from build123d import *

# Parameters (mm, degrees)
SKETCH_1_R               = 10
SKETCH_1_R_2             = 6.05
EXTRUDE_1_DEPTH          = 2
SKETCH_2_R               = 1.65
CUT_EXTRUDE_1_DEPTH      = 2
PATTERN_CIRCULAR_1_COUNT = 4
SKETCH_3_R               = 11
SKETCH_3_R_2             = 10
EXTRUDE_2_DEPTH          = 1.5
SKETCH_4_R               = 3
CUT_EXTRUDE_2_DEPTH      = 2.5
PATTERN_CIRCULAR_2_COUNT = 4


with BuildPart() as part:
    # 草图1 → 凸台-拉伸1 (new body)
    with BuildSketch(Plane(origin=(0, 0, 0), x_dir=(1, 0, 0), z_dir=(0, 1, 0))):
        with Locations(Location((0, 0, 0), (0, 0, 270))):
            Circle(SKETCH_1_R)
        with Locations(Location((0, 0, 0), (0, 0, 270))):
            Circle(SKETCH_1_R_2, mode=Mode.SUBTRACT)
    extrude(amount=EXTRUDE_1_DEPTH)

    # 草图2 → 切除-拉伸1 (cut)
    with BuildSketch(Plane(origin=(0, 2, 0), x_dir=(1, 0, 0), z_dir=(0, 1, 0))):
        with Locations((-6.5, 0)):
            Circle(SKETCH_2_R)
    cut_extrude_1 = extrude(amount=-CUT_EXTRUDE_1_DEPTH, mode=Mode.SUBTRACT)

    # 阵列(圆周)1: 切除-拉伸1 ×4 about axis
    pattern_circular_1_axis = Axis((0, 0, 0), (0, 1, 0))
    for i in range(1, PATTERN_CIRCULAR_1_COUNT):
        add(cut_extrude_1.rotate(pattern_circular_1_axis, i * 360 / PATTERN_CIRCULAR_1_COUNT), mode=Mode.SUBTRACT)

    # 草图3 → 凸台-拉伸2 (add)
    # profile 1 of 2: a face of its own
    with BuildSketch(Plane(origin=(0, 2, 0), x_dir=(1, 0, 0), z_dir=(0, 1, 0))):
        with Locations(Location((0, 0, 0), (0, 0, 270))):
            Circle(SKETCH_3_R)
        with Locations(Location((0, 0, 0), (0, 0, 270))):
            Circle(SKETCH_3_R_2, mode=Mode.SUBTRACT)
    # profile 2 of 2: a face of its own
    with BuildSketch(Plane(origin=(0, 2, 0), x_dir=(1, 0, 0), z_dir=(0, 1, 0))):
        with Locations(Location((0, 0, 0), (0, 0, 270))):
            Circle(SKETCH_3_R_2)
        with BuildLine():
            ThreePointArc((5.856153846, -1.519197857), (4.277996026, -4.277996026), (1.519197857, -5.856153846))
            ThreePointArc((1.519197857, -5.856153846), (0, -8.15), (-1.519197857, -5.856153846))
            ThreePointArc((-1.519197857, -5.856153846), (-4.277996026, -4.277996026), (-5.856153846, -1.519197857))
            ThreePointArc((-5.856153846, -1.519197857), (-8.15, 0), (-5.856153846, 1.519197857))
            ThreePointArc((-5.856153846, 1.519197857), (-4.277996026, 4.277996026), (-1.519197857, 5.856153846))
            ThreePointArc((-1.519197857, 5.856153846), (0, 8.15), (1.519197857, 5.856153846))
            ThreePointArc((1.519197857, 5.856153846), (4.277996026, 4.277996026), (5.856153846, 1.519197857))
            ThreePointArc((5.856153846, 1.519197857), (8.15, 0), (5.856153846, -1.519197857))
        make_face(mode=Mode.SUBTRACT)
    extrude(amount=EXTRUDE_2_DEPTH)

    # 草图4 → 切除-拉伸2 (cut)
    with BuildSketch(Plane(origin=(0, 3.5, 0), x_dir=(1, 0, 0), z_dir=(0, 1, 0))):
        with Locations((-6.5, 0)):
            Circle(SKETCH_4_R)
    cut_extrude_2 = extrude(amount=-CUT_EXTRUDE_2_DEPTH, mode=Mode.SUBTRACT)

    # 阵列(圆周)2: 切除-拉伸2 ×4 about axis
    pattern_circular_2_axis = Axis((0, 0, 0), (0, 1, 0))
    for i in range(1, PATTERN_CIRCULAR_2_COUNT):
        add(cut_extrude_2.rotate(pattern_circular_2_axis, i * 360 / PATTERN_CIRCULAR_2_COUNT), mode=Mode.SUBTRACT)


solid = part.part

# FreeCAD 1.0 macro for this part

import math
import FreeCAD as App
import Part
import Sketcher
Q = App.Units.Quantity

doc = App.newDocument("Part")
body = doc.addObject("PartDesign::Body", "Body")

sketch1 = body.newObject("Sketcher::SketchObject", "Sketch")
sketch1.AttachmentSupport = (doc.getObject("XZ_Plane"), [""])
sketch1.MapMode = "FlatFace"
sketch1.addGeometry(Part.Circle(App.Vector(0, 0, 0), App.Vector(0, 0, 1), 10), False)
sketch1.addGeometry(Part.Circle(App.Vector(0, 0, 0), App.Vector(0, 0, 1), 6), False)
sketch1.addConstraint(Sketcher.Constraint("Coincident", 0, 3, -1, 1))
sketch1.addConstraint(Sketcher.Constraint("Coincident", 1, 3, -1, 1))
sketch1.addConstraint(Sketcher.Constraint("Diameter", 0, Q("20 mm")))
sketch1.addConstraint(Sketcher.Constraint("Diameter", 1, Q("12.1 mm")))
pad1 = body.newObject("PartDesign::Pad", "Pad")
pad1.Profile = sketch1
pad1.Length = 2
pad1.Reversed = True

sketch2 = body.newObject("Sketcher::SketchObject", "Sketch001")
sketch2.AttachmentSupport = (doc.getObject("XZ_Plane"), [""])
sketch2.MapMode = "FlatFace"
sketch2.AttachmentOffset = App.Placement(App.Vector(0, 0, -2), App.Rotation())
sketch2.addGeometry(Part.Circle(App.Vector(-6.5, 0, 0), App.Vector(0, 0, 1), 1.6), False)
sketch2.addConstraint(Sketcher.Constraint("PointOnObject", 0, 3, -1))
sketch2.addConstraint(Sketcher.Constraint("Diameter", 0, Q("3.3 mm")))
sketch2.addConstraint(Sketcher.Constraint("DistanceX", 0, 3, -1, 1, Q("6.5 mm")))
pocket1 = body.newObject("PartDesign::Pocket", "Pocket")
pocket1.Profile = sketch2
pocket1.Length = 2
pocket1.Reversed = True
doc.recompute()

polarpattern = body.newObject("PartDesign::PolarPattern", "PolarPattern")
polarpattern.Originals = [pocket1]
polarpattern.Axis = (doc.getObject("Y_Axis"), [""])
polarpattern.Angle = 360
polarpattern.Occurrences = 4
body.Tip = polarpattern

sketch3 = body.newObject("Sketcher::SketchObject", "Sketch002")
sketch3.AttachmentSupport = (doc.getObject("XZ_Plane"), [""])
sketch3.MapMode = "FlatFace"
sketch3.AttachmentOffset = App.Placement(App.Vector(0, 0, -2), App.Rotation())
sketch3.addGeometry(Part.Circle(App.Vector(0, 0, 0), App.Vector(0, 0, 1), 11), False)
sketch3.addGeometry(Part.ArcOfCircle(Part.Circle(App.Vector(0, 0, 0), App.Vector(0, 0, 1), 6), math.radians(15), math.radians(75)), False)
sketch3.addGeometry(Part.ArcOfCircle(Part.Circle(App.Vector(0, 6.5, 0), App.Vector(0, 0, 1), 1.6), math.radians(-23), math.radians(203)), False)
sketch3.addGeometry(Part.ArcOfCircle(Part.Circle(App.Vector(0, 0, 0), App.Vector(0, 0, 1), 6), math.radians(105), math.radians(165)), False)
sketch3.addGeometry(Part.ArcOfCircle(Part.Circle(App.Vector(-6.5, 0, 0), App.Vector(0, 0, 1), 1.6), math.radians(67), math.radians(293)), False)
sketch3.addGeometry(Part.ArcOfCircle(Part.Circle(App.Vector(0, 0, 0), App.Vector(0, 0, 1), 6), math.radians(-165), math.radians(-105)), False)
sketch3.addGeometry(Part.ArcOfCircle(Part.Circle(App.Vector(0, -6.5, 0), App.Vector(0, 0, 1), 1.6), math.radians(157), math.radians(383)), False)
sketch3.addGeometry(Part.ArcOfCircle(Part.Circle(App.Vector(0, 0, 0), App.Vector(0, 0, 1), 6), math.radians(-75), math.radians(-15)), False)
sketch3.addGeometry(Part.ArcOfCircle(Part.Circle(App.Vector(6.5, 0, 0), App.Vector(0, 0, 1), 1.6), math.radians(-113), math.radians(113)), False)
sketch3.addConstraint(Sketcher.Constraint("Coincident", 1, 2, 2, 1))
sketch3.addConstraint(Sketcher.Constraint("Coincident", 2, 2, 3, 1))
sketch3.addConstraint(Sketcher.Constraint("Coincident", 3, 2, 4, 1))
sketch3.addConstraint(Sketcher.Constraint("Coincident", 4, 2, 5, 1))
sketch3.addConstraint(Sketcher.Constraint("Coincident", 5, 2, 6, 1))
sketch3.addConstraint(Sketcher.Constraint("Coincident", 6, 2, 7, 1))
sketch3.addConstraint(Sketcher.Constraint("Coincident", 7, 2, 8, 1))
sketch3.addConstraint(Sketcher.Constraint("Coincident", 8, 2, 1, 1))
sketch3.addConstraint(Sketcher.Constraint("Coincident", 0, 3, -1, 1))
sketch3.addConstraint(Sketcher.Constraint("Coincident", 1, 3, -1, 1))
sketch3.addConstraint(Sketcher.Constraint("Coincident", 3, 3, -1, 1))
sketch3.addConstraint(Sketcher.Constraint("Coincident", 5, 3, -1, 1))
sketch3.addConstraint(Sketcher.Constraint("Coincident", 7, 3, -1, 1))
sketch3.addConstraint(Sketcher.Constraint("Equal", 1, 3))
sketch3.addConstraint(Sketcher.Constraint("Equal", 2, 4))
sketch3.addConstraint(Sketcher.Constraint("Equal", 3, 5))
sketch3.addConstraint(Sketcher.Constraint("Equal", 4, 6))
sketch3.addConstraint(Sketcher.Constraint("Equal", 5, 7))
sketch3.addConstraint(Sketcher.Constraint("Equal", 6, 8))
sketch3.addConstraint(Sketcher.Constraint("Symmetric", 2, 3, 6, 3, -1, 1))
sketch3.addConstraint(Sketcher.Constraint("Symmetric", 4, 3, 8, 3, -1, 1))
sketch3.addConstraint(Sketcher.Constraint("PointOnObject", 2, 3, -2))
sketch3.addConstraint(Sketcher.Constraint("PointOnObject", 4, 3, -1))
sketch3.addConstraint(Sketcher.Constraint("Diameter", 0, Q("22 mm")))
sketch3.addConstraint(Sketcher.Constraint("Radius", 1, Q("6.05 mm")))
sketch3.addConstraint(Sketcher.Constraint("Radius", 2, Q("1.65 mm")))
sketch3.addConstraint(Sketcher.Constraint("DistanceY", -1, 1, 2, 3, Q("6.5 mm")))
sketch3.addConstraint(Sketcher.Constraint("DistanceX", 4, 3, -1, 1, Q("6.5 mm")))
pad2 = body.newObject("PartDesign::Pad", "Pad001")
pad2.Profile = sketch3
pad2.Length = 1.5
pad2.Reversed = True

sketch4 = body.newObject("Sketcher::SketchObject", "Sketch003")
sketch4.AttachmentSupport = (doc.getObject("XZ_Plane"), [""])
sketch4.MapMode = "FlatFace"
sketch4.AttachmentOffset = App.Placement(App.Vector(0, 0, -3.5), App.Rotation())
sketch4.addGeometry(Part.Circle(App.Vector(-6.5, 0, 0), App.Vector(0, 0, 1), 3), False)
sketch4.addConstraint(Sketcher.Constraint("PointOnObject", 0, 3, -1))
sketch4.addConstraint(Sketcher.Constraint("Diameter", 0, Q("6 mm")))
sketch4.addConstraint(Sketcher.Constraint("DistanceX", 0, 3, -1, 1, Q("6.5 mm")))
pocket2 = body.newObject("PartDesign::Pocket", "Pocket001")
pocket2.Profile = sketch4
pocket2.Length = 2.5
pocket2.Reversed = True
doc.recompute()

polarpattern2 = body.newObject("PartDesign::PolarPattern", "PolarPattern001")
polarpattern2.Originals = [pocket2]
polarpattern2.Axis = (doc.getObject("Y_Axis"), [""])
polarpattern2.Angle = 360
polarpattern2.Occurrences = 4
body.Tip = polarpattern2

doc.recompute()
